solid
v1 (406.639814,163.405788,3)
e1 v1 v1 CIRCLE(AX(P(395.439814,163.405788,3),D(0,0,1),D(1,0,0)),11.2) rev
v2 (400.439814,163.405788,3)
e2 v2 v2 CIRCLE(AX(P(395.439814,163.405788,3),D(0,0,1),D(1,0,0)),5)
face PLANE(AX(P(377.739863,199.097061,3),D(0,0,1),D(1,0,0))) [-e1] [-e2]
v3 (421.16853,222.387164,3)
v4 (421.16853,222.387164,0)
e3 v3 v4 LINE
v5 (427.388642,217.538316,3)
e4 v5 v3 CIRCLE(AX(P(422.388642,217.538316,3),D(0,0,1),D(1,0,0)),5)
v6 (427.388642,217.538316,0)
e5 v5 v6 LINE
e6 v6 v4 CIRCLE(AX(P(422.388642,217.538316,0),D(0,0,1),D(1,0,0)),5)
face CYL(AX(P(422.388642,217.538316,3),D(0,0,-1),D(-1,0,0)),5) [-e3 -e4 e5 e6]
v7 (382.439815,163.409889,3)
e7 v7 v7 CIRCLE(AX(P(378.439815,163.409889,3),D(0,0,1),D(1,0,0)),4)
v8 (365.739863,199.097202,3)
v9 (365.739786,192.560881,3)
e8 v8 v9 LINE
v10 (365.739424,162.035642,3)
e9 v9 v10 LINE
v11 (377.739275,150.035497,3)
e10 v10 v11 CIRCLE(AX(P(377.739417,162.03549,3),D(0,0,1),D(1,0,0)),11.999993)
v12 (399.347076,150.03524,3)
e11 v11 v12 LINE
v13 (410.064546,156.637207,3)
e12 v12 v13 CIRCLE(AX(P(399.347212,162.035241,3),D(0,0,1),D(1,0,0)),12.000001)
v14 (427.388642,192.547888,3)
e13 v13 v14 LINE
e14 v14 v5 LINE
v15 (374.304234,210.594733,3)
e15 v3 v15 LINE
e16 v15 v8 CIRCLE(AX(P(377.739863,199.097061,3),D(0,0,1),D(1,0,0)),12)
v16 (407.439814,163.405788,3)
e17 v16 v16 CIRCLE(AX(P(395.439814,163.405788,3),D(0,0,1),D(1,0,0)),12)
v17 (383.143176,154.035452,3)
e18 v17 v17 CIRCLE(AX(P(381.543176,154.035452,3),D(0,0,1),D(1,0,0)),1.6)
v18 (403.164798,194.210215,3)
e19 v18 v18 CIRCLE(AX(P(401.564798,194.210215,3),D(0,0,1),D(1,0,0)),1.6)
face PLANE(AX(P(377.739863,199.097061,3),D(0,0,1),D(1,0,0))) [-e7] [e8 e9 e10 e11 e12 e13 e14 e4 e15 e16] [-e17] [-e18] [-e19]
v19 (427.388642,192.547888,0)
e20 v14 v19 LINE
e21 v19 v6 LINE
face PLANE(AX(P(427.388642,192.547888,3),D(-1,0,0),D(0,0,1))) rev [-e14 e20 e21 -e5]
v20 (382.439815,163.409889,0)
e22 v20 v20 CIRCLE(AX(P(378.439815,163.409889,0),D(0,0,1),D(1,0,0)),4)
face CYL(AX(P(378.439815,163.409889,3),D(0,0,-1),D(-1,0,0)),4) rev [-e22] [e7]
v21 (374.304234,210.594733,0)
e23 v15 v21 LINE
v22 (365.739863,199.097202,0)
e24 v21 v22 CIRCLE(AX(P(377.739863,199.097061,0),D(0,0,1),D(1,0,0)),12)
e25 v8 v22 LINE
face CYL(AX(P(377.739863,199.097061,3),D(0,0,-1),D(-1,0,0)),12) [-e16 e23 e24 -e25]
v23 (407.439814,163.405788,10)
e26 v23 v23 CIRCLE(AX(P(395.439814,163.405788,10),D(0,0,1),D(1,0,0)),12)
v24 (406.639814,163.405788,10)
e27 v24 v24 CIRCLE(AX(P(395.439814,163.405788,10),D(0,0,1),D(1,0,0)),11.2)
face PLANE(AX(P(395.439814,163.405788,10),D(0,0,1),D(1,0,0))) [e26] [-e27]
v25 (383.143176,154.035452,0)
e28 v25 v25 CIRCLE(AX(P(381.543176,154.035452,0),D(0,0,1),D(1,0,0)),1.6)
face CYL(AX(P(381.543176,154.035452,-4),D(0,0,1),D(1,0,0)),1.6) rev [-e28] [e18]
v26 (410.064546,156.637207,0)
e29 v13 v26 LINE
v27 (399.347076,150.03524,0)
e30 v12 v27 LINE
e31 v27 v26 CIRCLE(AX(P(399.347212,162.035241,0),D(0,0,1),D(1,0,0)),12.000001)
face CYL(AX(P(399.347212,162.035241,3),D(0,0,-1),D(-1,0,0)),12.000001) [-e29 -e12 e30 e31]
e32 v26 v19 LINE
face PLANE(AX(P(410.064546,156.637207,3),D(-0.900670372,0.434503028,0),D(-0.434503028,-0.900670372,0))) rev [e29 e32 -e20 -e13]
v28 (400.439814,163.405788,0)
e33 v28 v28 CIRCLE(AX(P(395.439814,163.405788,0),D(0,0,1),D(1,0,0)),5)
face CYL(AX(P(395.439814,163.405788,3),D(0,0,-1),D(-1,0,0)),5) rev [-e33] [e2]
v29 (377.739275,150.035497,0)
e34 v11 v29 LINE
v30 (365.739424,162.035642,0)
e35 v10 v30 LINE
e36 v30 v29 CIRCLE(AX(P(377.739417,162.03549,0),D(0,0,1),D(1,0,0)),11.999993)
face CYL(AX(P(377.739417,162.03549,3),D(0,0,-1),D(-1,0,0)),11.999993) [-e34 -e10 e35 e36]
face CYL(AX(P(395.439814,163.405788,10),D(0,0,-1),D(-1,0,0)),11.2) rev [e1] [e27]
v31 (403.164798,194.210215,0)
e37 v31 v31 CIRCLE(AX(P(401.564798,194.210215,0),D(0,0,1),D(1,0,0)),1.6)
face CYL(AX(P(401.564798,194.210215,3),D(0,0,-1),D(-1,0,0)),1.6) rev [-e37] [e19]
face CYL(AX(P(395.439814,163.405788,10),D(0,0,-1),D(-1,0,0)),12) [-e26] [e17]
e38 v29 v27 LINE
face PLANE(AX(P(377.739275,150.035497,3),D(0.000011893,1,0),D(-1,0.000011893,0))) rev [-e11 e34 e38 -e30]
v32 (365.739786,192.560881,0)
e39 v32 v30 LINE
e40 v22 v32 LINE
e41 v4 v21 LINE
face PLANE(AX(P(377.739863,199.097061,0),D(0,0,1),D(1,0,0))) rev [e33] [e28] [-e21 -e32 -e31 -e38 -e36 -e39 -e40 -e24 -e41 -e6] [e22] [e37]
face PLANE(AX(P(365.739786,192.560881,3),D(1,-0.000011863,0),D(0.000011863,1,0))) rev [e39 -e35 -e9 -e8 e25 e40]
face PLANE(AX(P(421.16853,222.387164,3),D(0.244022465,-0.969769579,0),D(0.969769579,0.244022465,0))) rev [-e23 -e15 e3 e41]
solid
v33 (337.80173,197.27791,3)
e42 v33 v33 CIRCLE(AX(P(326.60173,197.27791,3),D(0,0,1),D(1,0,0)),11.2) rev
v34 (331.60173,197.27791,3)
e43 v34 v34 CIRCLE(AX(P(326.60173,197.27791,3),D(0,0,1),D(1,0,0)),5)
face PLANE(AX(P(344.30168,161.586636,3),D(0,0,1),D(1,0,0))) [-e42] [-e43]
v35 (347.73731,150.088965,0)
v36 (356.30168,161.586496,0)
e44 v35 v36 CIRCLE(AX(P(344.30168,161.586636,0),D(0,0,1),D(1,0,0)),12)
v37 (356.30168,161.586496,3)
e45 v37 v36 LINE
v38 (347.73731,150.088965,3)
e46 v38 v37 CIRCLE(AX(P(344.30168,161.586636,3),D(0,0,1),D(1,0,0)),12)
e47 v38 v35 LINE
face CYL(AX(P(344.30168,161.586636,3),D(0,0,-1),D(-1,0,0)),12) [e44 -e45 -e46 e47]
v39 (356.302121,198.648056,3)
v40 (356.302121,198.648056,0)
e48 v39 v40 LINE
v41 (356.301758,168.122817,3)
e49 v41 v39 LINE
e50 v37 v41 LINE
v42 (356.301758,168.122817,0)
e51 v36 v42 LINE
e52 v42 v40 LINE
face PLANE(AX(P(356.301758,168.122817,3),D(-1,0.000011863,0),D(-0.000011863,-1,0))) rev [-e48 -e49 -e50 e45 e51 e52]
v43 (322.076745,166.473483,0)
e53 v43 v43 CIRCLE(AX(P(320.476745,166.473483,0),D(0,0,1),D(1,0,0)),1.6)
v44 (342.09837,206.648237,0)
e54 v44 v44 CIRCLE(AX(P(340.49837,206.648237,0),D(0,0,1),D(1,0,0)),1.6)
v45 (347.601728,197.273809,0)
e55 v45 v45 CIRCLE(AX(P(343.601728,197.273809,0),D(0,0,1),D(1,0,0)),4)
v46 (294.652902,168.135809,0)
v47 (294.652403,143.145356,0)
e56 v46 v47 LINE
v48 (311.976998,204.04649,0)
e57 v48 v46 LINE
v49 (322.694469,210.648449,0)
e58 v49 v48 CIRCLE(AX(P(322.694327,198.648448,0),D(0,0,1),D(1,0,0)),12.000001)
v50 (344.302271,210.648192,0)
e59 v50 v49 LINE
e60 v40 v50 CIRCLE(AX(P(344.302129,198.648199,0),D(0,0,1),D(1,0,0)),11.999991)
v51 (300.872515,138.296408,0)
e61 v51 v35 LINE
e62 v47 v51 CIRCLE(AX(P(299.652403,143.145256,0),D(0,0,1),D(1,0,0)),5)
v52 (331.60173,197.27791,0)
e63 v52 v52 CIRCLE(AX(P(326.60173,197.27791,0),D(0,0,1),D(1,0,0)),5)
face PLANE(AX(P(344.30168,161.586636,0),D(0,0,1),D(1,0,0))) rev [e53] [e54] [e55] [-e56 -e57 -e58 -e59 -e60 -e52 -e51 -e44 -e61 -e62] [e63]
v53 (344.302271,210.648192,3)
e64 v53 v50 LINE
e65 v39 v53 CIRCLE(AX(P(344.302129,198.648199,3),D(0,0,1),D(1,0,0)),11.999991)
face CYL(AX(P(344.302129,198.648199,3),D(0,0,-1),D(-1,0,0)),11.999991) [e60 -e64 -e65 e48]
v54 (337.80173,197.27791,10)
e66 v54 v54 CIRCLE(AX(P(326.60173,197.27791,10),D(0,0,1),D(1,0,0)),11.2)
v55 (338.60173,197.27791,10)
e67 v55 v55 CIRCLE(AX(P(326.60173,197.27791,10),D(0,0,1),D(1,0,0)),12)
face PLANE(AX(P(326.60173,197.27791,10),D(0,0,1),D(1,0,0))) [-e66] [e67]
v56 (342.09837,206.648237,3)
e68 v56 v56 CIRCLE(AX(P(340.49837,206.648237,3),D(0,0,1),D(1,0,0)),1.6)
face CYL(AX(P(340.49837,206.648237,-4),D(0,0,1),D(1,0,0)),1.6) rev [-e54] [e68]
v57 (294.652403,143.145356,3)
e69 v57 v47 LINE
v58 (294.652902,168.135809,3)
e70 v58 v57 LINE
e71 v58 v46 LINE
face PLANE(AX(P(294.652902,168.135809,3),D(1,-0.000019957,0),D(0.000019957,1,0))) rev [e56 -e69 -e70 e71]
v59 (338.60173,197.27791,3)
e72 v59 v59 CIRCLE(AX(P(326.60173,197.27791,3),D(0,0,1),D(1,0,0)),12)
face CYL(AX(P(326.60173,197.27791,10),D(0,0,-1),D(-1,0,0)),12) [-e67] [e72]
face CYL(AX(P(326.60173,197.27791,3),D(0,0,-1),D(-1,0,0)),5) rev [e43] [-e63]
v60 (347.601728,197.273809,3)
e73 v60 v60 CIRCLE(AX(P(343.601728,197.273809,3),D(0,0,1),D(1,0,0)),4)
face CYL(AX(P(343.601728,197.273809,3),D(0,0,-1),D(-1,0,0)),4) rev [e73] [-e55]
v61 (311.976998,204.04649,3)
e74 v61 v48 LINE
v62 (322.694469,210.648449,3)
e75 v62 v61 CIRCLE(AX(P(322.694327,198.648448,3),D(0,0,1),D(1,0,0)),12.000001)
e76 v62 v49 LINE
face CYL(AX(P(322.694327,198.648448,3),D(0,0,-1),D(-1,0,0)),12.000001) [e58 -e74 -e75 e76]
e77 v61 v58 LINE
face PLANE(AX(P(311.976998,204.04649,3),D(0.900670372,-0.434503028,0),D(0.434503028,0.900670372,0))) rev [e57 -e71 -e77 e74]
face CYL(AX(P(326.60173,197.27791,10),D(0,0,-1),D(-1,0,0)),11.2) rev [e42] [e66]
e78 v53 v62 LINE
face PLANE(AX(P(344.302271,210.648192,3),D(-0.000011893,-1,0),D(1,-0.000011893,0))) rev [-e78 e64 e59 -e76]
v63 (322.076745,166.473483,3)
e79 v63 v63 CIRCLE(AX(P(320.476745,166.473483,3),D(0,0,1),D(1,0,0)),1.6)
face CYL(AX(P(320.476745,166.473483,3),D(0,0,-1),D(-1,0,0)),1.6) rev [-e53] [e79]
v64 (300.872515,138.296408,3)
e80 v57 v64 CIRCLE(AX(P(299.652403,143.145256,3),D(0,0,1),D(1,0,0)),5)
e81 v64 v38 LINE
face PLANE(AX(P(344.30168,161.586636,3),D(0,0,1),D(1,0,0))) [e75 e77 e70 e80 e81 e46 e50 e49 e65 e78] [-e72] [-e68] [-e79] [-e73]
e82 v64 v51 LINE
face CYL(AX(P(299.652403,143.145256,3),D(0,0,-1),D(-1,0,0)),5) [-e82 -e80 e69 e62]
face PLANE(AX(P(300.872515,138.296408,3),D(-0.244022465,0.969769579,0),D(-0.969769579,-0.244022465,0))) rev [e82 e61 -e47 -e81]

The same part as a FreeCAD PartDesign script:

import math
import FreeCAD as App
import Part
import Sketcher

V = App.Vector

doc = App.newDocument("Part")
params = doc.addObject("Spreadsheet::Sheet", "Params")
for row, (alias, value) in enumerate([
    ("sketch1_diameter", "10 mm"),
    ("sketch1_diameter2", "8 mm"),
    ("sketch1_radius", "12 mm"),
    ("sketch1_diameter3", "3.2 mm"),
    ("pad1_length", "3 mm"),
    ("sketch2_diameter", "8 mm"),
    ("sketch2_diameter2", "10 mm"),
    ("sketch2_radius", "12 mm"),
    ("sketch2_diameter3", "3.2 mm"),
    ("pad2_length", "3 mm"),
    ("sketch3_diameter", "24 mm"),
    ("sketch3_diameter2", "22.4 mm"),
    ("pad3_length", "7 mm"),
    ("sketch4_diameter", "3.2 mm"),
    ("pocket1_length", "7 mm"),
], start=1):
    params.set(f"A{row}", alias)
    params.set(f"B{row}", "=" + value)
    params.setAlias(f"B{row}", alias)

body = doc.addObject("PartDesign::Body", "Body")

# Sketch on XY plane
sketch1 = body.newObject("Sketcher::SketchObject", "Sketch")
sketch1.AttachmentSupport = (doc.getObject("XY_Plane"), [""])
sketch1.MapMode = "FlatFace"
sketch1.addGeometry([
    Part.LineSegment(V(294.7, 168.1, 0), V(294.7, 143.1, 0)),  # 0
    Part.ArcOfCircle(Part.Circle(V(299.7, 143.1, 0), V(0, 0, 1), 5), math.radians(180), math.radians(284)),  # 1
    Part.LineSegment(V(300.9, 138.3, 0), V(347.7, 150.1, 0)),  # 2
    Part.ArcOfCircle(Part.Circle(V(344.3, 161.6, 0), V(0, 0, 1), 12), math.radians(-73), math.radians(0)),  # 3
    Part.LineSegment(V(356.3, 161.6, 0), V(356.3, 168.1, 0)),  # 4
    Part.LineSegment(V(356.3, 168.1, 0), V(356.3, 198.6, 0)),  # 5
    Part.ArcOfCircle(Part.Circle(V(344.3, 198.6, 0), V(0, 0, 1), 12), math.radians(0), math.radians(90)),  # 6
    Part.LineSegment(V(344.3, 210.6, 0), V(322.7, 210.6, 0)),  # 7
    Part.ArcOfCircle(Part.Circle(V(322.7, 198.6, 0), V(0, 0, 1), 12), math.radians(90), math.radians(153)),  # 8
    Part.LineSegment(V(312, 204, 0), V(294.7, 168.1, 0)),  # 9
    Part.Circle(V(320.5, 166.5, 0), V(0, 0, 1), 1.6),  # 10
    Part.Circle(V(326.6, 197.3, 0), V(0, 0, 1), 5),  # 11
    Part.Circle(V(343.6, 197.3, 0), V(0, 0, 1), 4),  # 12
], False)
sketch1.addConstraint([
    Sketcher.Constraint("Tangent", 0, 2, 1, 1),
    Sketcher.Constraint("Tangent", 1, 2, 2, 1),
    Sketcher.Constraint("Coincident", 2, 2, 3, 1),
    Sketcher.Constraint("Tangent", 3, 2, 4, 1),
    Sketcher.Constraint("Coincident", 4, 2, 5, 1),
    Sketcher.Constraint("Tangent", 5, 2, 6, 1),
    Sketcher.Constraint("Tangent", 6, 2, 7, 1),
    Sketcher.Constraint("Tangent", 7, 2, 8, 1),
    Sketcher.Constraint("Coincident", 8, 2, 9, 1),
    Sketcher.Constraint("Coincident", 9, 2, 0, 1),
    Sketcher.Constraint("Equal", 3, 8),
    Sketcher.Constraint("Equal", 1, 11),
    Sketcher.Constraint("Parallel", 4, 5),
    Sketcher.Constraint("Perpendicular", 5, 7),
    Sketcher.Constraint("Diameter", 11, 10.0),
    Sketcher.Constraint("Diameter", 12, 8.0),
    Sketcher.Constraint("Radius", 3, 12.0),
    Sketcher.Constraint("Diameter", 10, 3.2),
    Sketcher.Constraint("DistanceX", 11, 3, 12, 3, 16.999999),
    Sketcher.Constraint("Radius", 6, 11.999993),
    Sketcher.Constraint("Distance", 2, 48.325701),
    Sketcher.Constraint("Distance", 7, 21.607802),
    Sketcher.Constraint("DistanceY", -1, 1, 6, 3, 198.648198),
    Sketcher.Constraint("DistanceX", -1, 1, 9, 2, 294.652902),
    Sketcher.Constraint("DistanceX", 12, 3, 6, 3, 0.700398),
    Sketcher.Constraint("DistanceY", 12, 3, 11, 3, 0.004102),
    Sketcher.Constraint("DistanceY", 3, 2, 6, 3, 37.061702),
    Sketcher.Constraint("DistanceX", 0, 2, 9, 2, 0.000499),
    Sketcher.Constraint("DistanceY", 1, 2, 9, 2, 29.839401),
    Sketcher.Constraint("Distance", 4, 6.53632),
    Sketcher.Constraint("Distance", 5, 30.52524),
    Sketcher.Constraint("Distance", 9, 39.871059),
    Sketcher.Constraint("DistanceX", -1, 1, 3, 3, 344.30168),
    Sketcher.Constraint("DistanceY", -1, 1, 11, 3, 197.27791),
    Sketcher.Constraint("DistanceX", -1, 1, 2, 2, 347.73731),
    Sketcher.Constraint("DistanceX", 10, 3, 6, 3, 23.825381),
    Sketcher.Constraint("DistanceY", 2, 2, 10, 3, 16.384519),
])
sketch1.setExpression("Constraints[14]", "Params.sketch1_diameter")
sketch1.setExpression("Constraints[15]", "Params.sketch1_diameter2")
sketch1.setExpression("Constraints[16]", "Params.sketch1_radius")
sketch1.setExpression("Constraints[17]", "Params.sketch1_diameter3")
pad1 = body.newObject("PartDesign::Pad", "Pad")
pad1.Profile = sketch1
pad1.setExpression("Length", "Params.pad1_length")
body2 = doc.addObject("PartDesign::Body", "Body001")

# Sketch on XY plane
sketch2 = body2.newObject("Sketcher::SketchObject", "Sketch001")
sketch2.AttachmentSupport = (doc.getObject("XY_Plane001"), [""])
sketch2.MapMode = "FlatFace"
sketch2.addGeometry([
    Part.LineSegment(V(421.2, 222.4, 0), V(374.3, 210.6, 0)),  # 0
    Part.ArcOfCircle(Part.Circle(V(377.7, 199.1, 0), V(0, 0, 1), 12), math.radians(107), math.radians(180)),  # 1
    Part.LineSegment(V(365.7, 199.1, 0), V(365.7, 195.9, 0)),  # 2
    Part.LineSegment(V(365.7, 195.9, 0), V(365.7, 192.6, 0)),  # 3
    Part.LineSegment(V(365.7, 192.6, 0), V(365.7, 162, 0)),  # 4
    Part.ArcOfCircle(Part.Circle(V(377.7, 162, 0), V(0, 0, 1), 12), math.radians(180), math.radians(270)),  # 5
    Part.LineSegment(V(377.7, 150, 0), V(399.3, 150, 0)),  # 6
    Part.ArcOfCircle(Part.Circle(V(399.3, 162, 0), V(0, 0, 1), 12), math.radians(-90), math.radians(-27)),  # 7
    Part.LineSegment(V(410.1, 156.6, 0), V(427.4, 192.5, 0)),  # 8
    Part.LineSegment(V(427.4, 192.5, 0), V(427.4, 217.5, 0)),  # 9
    Part.ArcOfCircle(Part.Circle(V(422.4, 217.5, 0), V(0, 0, 1), 5), math.radians(0), math.radians(104)),  # 10
    Part.Circle(V(378.4, 163.4, 0), V(0, 0, 1), 4),  # 11
    Part.Circle(V(395.4, 163.4, 0), V(0, 0, 1), 5),  # 12
    Part.Circle(V(401.6, 194.2, 0), V(0, 0, 1), 1.6),  # 13
], False)
sketch2.addConstraint([
    Sketcher.Constraint("Coincident", 0, 2, 1, 1),
    Sketcher.Constraint("Tangent", 1, 2, 2, 1),
    Sketcher.Constraint("Coincident", 2, 2, 3, 1),
    Sketcher.Constraint("Coincident", 3, 2, 4, 1),
    Sketcher.Constraint("Tangent", 4, 2, 5, 1),
    Sketcher.Constraint("Tangent", 5, 2, 6, 1),
    Sketcher.Constraint("Tangent", 6, 2, 7, 1),
    Sketcher.Constraint("Coincident", 7, 2, 8, 1),
    Sketcher.Constraint("Coincident", 8, 2, 9, 1),
    Sketcher.Constraint("Tangent", 9, 2, 10, 1),
    Sketcher.Constraint("Tangent", 10, 2, 0, 1),
    Sketcher.Constraint("Vertical", 9),
    Sketcher.Constraint("Equal", 1, 7),
    Sketcher.Constraint("Equal", 10, 12),
    Sketcher.Constraint("Parallel", 2, 3),
    Sketcher.Constraint("Parallel", 3, 4),
    Sketcher.Constraint("Perpendicular", 4, 6),
    Sketcher.Constraint("Diameter", 11, 8.0),
    Sketcher.Constraint("Diameter", 12, 10.0),
    Sketcher.Constraint("Radius", 1, 12.0),
    Sketcher.Constraint("Diameter", 13, 3.2),
    Sketcher.Constraint("DistanceX", 11, 3, 12, 3, 16.999999),
    Sketcher.Constraint("Radius", 5, 11.999993),
    Sketcher.Constraint("Distance", 2, 3.236401),
    Sketcher.Constraint("Distance", 6, 21.607802),
    Sketcher.Constraint("DistanceX", -1, 1, 13, 3, 401.564798),
    Sketcher.Constraint("DistanceY", -1, 1, 1, 2, 199.097202),
    Sketcher.Constraint("DistanceX", 5, 3, 11, 3, 0.700399),
    Sketcher.Constraint("DistanceY", 5, 3, 11, 3, 1.374399),
    Sketcher.Constraint("DistanceY", 12, 3, 11, 3, 0.004102),
    Sketcher.Constraint("DistanceY", 13, 3, 10, 3, 23.328101),
    Sketcher.Constraint("DistanceY", 7, 3, 4, 2, 0.0004),
    Sketcher.Constraint("DistanceY", 12, 3, 8, 2, 29.142101),
    Sketcher.Constraint("Distance", 3, 3.299919),
    Sketcher.Constraint("Distance", 4, 30.52524),
    Sketcher.Constraint("Distance", 8, 39.871059),
    Sketcher.Constraint("DistanceY", 9, 1, 9, 2, 24.990428),
    Sketcher.Constraint("DistanceX", -1, 1, 10, 2, 421.16853),
    Sketcher.Constraint("DistanceX", 1, 3, 10, 3, 44.648779),
    Sketcher.Constraint("DistanceX", 0, 2, 1, 3, 3.43563),
])
sketch2.setExpression("Constraints[17]", "Params.sketch2_diameter")
sketch2.setExpression("Constraints[18]", "Params.sketch2_diameter2")
sketch2.setExpression("Constraints[19]", "Params.sketch2_radius")
sketch2.setExpression("Constraints[20]", "Params.sketch2_diameter3")
pad2 = body2.newObject("PartDesign::Pad", "Pad001")
pad2.Profile = sketch2
pad2.setExpression("Length", "Params.pad2_length")
body.AllowCompound = True
doc.recompute()

boolean = body.newObject("PartDesign::Boolean", "Boolean")
boolean.Type = "Fuse"
boolean.addObjects([body2])

# Sketch on XY plane
sketch3 = body.newObject("Sketcher::SketchObject", "Sketch002")
sketch3.AttachmentSupport = (doc.getObject("XY_Plane"), [""])
sketch3.MapMode = "FlatFace"
sketch3.AttachmentOffset = App.Placement(V(0, 0, 3), App.Rotation())
sketch3.addGeometry([
    Part.Circle(V(395, 163, 0), V(0, 0, 1), 12),
    Part.Circle(V(395, 163, 0), V(0, 0, 1), 11),
    Part.Circle(V(327, 197, 0), V(0, 0, 1), 12),
    Part.Circle(V(327, 197, 0), V(0, 0, 1), 11),
], False)
sketch3.addConstraint([
    Sketcher.Constraint("Coincident", 1, 3, 0, 3),
    Sketcher.Constraint("Coincident", 3, 3, 2, 3),
    Sketcher.Constraint("Equal", 0, 2),
    Sketcher.Constraint("Equal", 1, 3),
    Sketcher.Constraint("Diameter", 0, 24.0),
    Sketcher.Constraint("Diameter", 1, 22.4),
    Sketcher.Constraint("DistanceX", -1, 1, 2, 3, 326.60173),
    Sketcher.Constraint("DistanceY", -1, 1, 2, 3, 197.27791),
    Sketcher.Constraint("DistanceX", -1, 1, 0, 3, 395.439814),
    Sketcher.Constraint("DistanceY", -1, 1, 0, 3, 163.405788),
])
sketch3.setExpression("Constraints[4]", "Params.sketch3_diameter")
sketch3.setExpression("Constraints[5]", "Params.sketch3_diameter2")
pad3 = body.newObject("PartDesign::Pad", "Pad002")
pad3.Profile = sketch3
pad3.setExpression("Length", "Params.pad3_length")

# Sketch on XY plane
sketch4 = body.newObject("Sketcher::SketchObject", "Sketch003")
sketch4.AttachmentSupport = (doc.getObject("XY_Plane"), [""])
sketch4.MapMode = "FlatFace"
sketch4.AttachmentOffset = App.Placement(V(0, 0, 3), App.Rotation())
sketch4.addGeometry([
    Part.Circle(V(340.5, 206.6, 0), V(0, 0, 1), 1.6),
    Part.Circle(V(381.5, 154, 0), V(0, 0, 1), 1.6),
], False)
sketch4.addConstraint([
    Sketcher.Constraint("Equal", 0, 1),
    Sketcher.Constraint("Diameter", 0, 3.2),
    Sketcher.Constraint("DistanceX", -1, 1, 0, 3, 340.49837),
    Sketcher.Constraint("DistanceY", -1, 1, 0, 3, 206.648237),
    Sketcher.Constraint("DistanceX", -1, 1, 1, 3, 381.543176),
    Sketcher.Constraint("DistanceY", -1, 1, 1, 3, 154.035452),
])
sketch4.setExpression("Constraints[1]", "Params.sketch4_diameter")
pocket1 = body.newObject("PartDesign::Pocket", "Pocket")
pocket1.Profile = sketch4
pocket1.setExpression("Length", "Params.pocket1_length")

doc.recompute()
